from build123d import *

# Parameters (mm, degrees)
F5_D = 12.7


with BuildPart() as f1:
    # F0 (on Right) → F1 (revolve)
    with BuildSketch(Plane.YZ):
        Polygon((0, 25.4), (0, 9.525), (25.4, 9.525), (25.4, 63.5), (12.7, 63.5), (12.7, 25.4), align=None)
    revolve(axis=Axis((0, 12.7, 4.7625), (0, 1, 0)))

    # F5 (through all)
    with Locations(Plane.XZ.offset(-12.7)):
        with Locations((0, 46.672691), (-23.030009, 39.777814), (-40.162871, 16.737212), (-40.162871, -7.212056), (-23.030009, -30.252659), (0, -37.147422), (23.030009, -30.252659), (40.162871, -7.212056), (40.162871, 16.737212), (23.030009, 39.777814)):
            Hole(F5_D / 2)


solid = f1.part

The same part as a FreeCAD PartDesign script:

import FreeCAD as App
import Part
import Sketcher

V = App.Vector
Q = App.Units.Quantity

doc = App.newDocument("Part")
body = doc.addObject("PartDesign::Body", "Body")

# Sketch on YZ plane
sketch1 = doc.addObject("Sketcher::SketchObject", "Sketch")
body.addObject(sketch1)
sketch1.AttachmentSupport = (doc.YZ_Plane, [""])
sketch1.MapMode = "FlatFace"
sketch1.addGeometry([
    Part.LineSegment(V(0, 25, 0), V(0, 10, 0)),  # 0
    Part.LineSegment(V(0, 10, 0), V(25, 10, 0)),  # 1
    Part.LineSegment(V(25, 10, 0), V(25, 64, 0)),  # 2
    Part.LineSegment(V(25, 64, 0), V(13, 64, 0)),  # 3
    Part.LineSegment(V(13, 64, 0), V(13, 25, 0)),  # 4
    Part.LineSegment(V(13, 25, 0), V(0, 25, 0)),  # 5
], False)
sketch1.addGeometry(Part.LineSegment(V(0, 5, 0), V(25, 5, 0)), True)  # axis
sketch1.addConstraint([
    Sketcher.Constraint("Coincident", 0, 2, 1, 1),
    Sketcher.Constraint("Coincident", 1, 2, 2, 1),
    Sketcher.Constraint("Coincident", 2, 2, 3, 1),
    Sketcher.Constraint("Coincident", 3, 2, 4, 1),
    Sketcher.Constraint("Coincident", 4, 2, 5, 1),
    Sketcher.Constraint("Coincident", 5, 2, 0, 1),
    Sketcher.Constraint("Vertical", 0),
    Sketcher.Constraint("Horizontal", 1),
    Sketcher.Constraint("Vertical", 2),
    Sketcher.Constraint("Horizontal", 3),
    Sketcher.Constraint("Vertical", 4),
    Sketcher.Constraint("Horizontal", 5),
    Sketcher.Constraint("Horizontal", 6),
    Sketcher.Constraint("PointOnObject", 0, 2, -2),
    Sketcher.Constraint("PointOnObject", 6, 1, -2),
    Sketcher.Constraint("Vertical", 2, 2, 6, 2),
    Sketcher.Constraint("Equal", 3, 5),
    Sketcher.Constraint("DistanceX", 1, 1, 1, 2, Q("1 in")),
    Sketcher.Constraint("DistanceY", 4, 2, 4, 1, Q("1.5 in")),
    Sketcher.Constraint("DistanceY", -1, 1, 4, 2, Q("1 in")),
    Sketcher.Constraint("DistanceY", 0, 2, 0, 1, Q("0.625 in")),
    Sketcher.Constraint("DistanceY", -1, 1, 6, 1, Q("0.1875 in")),
])
revolution = doc.addObject("PartDesign::Revolution", "Revolution")
body.addObject(revolution)
revolution.Profile = sketch1
revolution.ReferenceAxis = (sketch1, ["Axis0"])
revolution.Angle = 360

# Sketch on XZ plane
sketch2 = doc.addObject("Sketcher::SketchObject", "Sketch001")
body.addObject(sketch2)
sketch2.AttachmentSupport = (doc.XZ_Plane, [""])
sketch2.MapMode = "FlatFace"
sketch2.AttachmentOffset = App.Placement(V(0, 0, -0.5 * 25.4), App.Rotation())
sketch2.addGeometry([
    Part.Circle(V(0, 47, 0), V(0, 0, 1), 6),  # 0
    Part.Circle(V(-23, 40, 0), V(0, 0, 1), 6),  # 1
    Part.Circle(V(-40, 17, 0), V(0, 0, 1), 6),  # 2
    Part.Circle(V(-40, -7, 0), V(0, 0, 1), 6),  # 3
    Part.Circle(V(-23, -30, 0), V(0, 0, 1), 6),  # 4
    Part.Circle(V(0, -37, 0), V(0, 0, 1), 6),  # 5
    Part.Circle(V(23, -30, 0), V(0, 0, 1), 6),  # 6
    Part.Circle(V(40, -7, 0), V(0, 0, 1), 6),  # 7
    Part.Circle(V(40, 17, 0), V(0, 0, 1), 6),  # 8
    Part.Circle(V(23, 40, 0), V(0, 0, 1), 6),  # 9
], False)
sketch2.addConstraint([
    Sketcher.Constraint("Equal", 0, 1),
    Sketcher.Constraint("Equal", 1, 2),
    Sketcher.Constraint("Equal", 2, 3),
    Sketcher.Constraint("Equal", 3, 4),
    Sketcher.Constraint("Equal", 4, 5),
    Sketcher.Constraint("Equal", 5, 6),
    Sketcher.Constraint("Equal", 6, 7),
    Sketcher.Constraint("Equal", 7, 8),
    Sketcher.Constraint("Equal", 8, 9),
    Sketcher.Constraint("Symmetric", 4, 3, 6, 3, -2),
    Sketcher.Constraint("Symmetric", 3, 3, 7, 3, -2),
    Sketcher.Constraint("Symmetric", 2, 3, 8, 3, -2),
    Sketcher.Constraint("Symmetric", 1, 3, 9, 3, -2),
    Sketcher.Constraint("PointOnObject", 0, 3, -2),
    Sketcher.Constraint("PointOnObject", 5, 3, -2),
    Sketcher.Constraint("Vertical", 2, 3, 3, 3),
    Sketcher.Constraint("Vertical", 1, 3, 4, 3),
    Sketcher.Constraint("Diameter", 0, Q("0.5 in")),
    Sketcher.Constraint("DistanceY", 2, 3, 1, 3, Q("23.040602 mm")),
    Sketcher.Constraint("DistanceY", -1, 1, 0, 3, Q("46.672691 mm")),
    Sketcher.Constraint("DistanceX", 1, 3, -1, 1, Q("23.030009 mm")),
    Sketcher.Constraint("DistanceX", 2, 3, -1, 1, Q("40.162871 mm")),
    Sketcher.Constraint("DistanceY", -1, 1, 2, 3, Q("16.737212 mm")),
    Sketcher.Constraint("DistanceY", 4, 3, -1, 1, Q("30.252659 mm")),
    Sketcher.Constraint("DistanceY", 3, 3, 2, 3, Q("23.949268 mm")),
    Sketcher.Constraint("DistanceY", 5, 3, -1, 1, Q("37.147422 mm")),
])
doc.recompute()
hole = doc.addObject("PartDesign::Hole", "Hole")
body.addObject(hole)
hole.Profile = sketch2
hole.ThreadType = "None"
hole.Diameter = Q("0.5 in")
hole.DepthType = "ThroughAll"

doc.recompute()
